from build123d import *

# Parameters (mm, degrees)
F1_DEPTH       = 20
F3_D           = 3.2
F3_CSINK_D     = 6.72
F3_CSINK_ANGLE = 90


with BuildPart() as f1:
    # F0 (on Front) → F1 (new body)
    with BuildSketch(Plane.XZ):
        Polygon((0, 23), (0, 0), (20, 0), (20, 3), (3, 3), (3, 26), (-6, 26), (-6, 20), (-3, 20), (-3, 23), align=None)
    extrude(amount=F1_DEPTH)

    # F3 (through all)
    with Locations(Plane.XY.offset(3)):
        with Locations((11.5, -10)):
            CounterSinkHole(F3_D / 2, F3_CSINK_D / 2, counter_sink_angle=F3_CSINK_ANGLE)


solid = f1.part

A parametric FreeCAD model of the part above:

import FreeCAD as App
import Part
import Sketcher

V = App.Vector
Q = App.Units.Quantity


def add_polygon(sketch, points):
    """Adds a closed chain of lines whose ends are joined by coincident constraints."""
    first, n = sketch.GeometryCount, len(points)
    for a, b in zip(points, points[1:] + points[:1]):
        sketch.addGeometry(Part.LineSegment(App.Vector(*a, 0), App.Vector(*b, 0)), False)
    for i in range(n):
        sketch.addConstraint(Sketcher.Constraint("Coincident", first + i, 2, first + (i + 1) % n, 1))

doc = App.newDocument("Part")
body = doc.addObject("PartDesign::Body", "Body")

sketch1 = body.newObject("Sketcher::SketchObject", "Sketch")
sketch1.AttachmentSupport = (doc.getObject("XZ_Plane"), [""])
sketch1.MapMode = "FlatFace"
add_polygon(sketch1, [(0, 23), (0, 0), (20, 0), (20, 3), (3, 3), (3, 26), (-6, 26), (-6, 20), (-3, 20), (-3, 23)])
sketch1.addConstraint(Sketcher.Constraint("Vertical", 0))
sketch1.addConstraint(Sketcher.Constraint("Horizontal", 1))
sketch1.addConstraint(Sketcher.Constraint("Vertical", 2))
sketch1.addConstraint(Sketcher.Constraint("Horizontal", 3))
sketch1.addConstraint(Sketcher.Constraint("Vertical", 4))
sketch1.addConstraint(Sketcher.Constraint("Horizontal", 5))
sketch1.addConstraint(Sketcher.Constraint("Vertical", 6))
sketch1.addConstraint(Sketcher.Constraint("Horizontal", 7))
sketch1.addConstraint(Sketcher.Constraint("Vertical", 8))
sketch1.addConstraint(Sketcher.Constraint("Horizontal", 9))
sketch1.addConstraint(Sketcher.Constraint("Coincident", 0, 2, -1, 1))
sketch1.addConstraint(Sketcher.Constraint("Equal", 7, 9))
sketch1.addConstraint(Sketcher.Constraint("Equal", 9, 2))
sketch1.addConstraint(Sketcher.Constraint("Equal", 0, 4))
sketch1.addConstraint(Sketcher.Constraint("Equal", 2, 8))
sketch1.addConstraint(Sketcher.Constraint("DistanceX", 1, 1, 1, 2, Q("20 mm")))
sketch1.addConstraint(Sketcher.Constraint("DistanceX", 3, 2, 3, 1, Q("17 mm")))
sketch1.addConstraint(Sketcher.Constraint("DistanceX", 5, 2, 5, 1, Q("9 mm")))
sketch1.addConstraint(Sketcher.Constraint("DistanceY", 0, 2, 0, 1, Q("23 mm")))
pad1 = body.newObject("PartDesign::Pad", "Pad")
pad1.Profile = sketch1
pad1.Length = 20

sketch2 = body.newObject("Sketcher::SketchObject", "Sketch001")
sketch2.AttachmentSupport = (doc.getObject("XY_Plane"), [""])
sketch2.MapMode = "FlatFace"
sketch2.AttachmentOffset = App.Placement(V(0, 0, 3), App.Rotation())
sketch2.addGeometry(Part.Circle(V(11.5, -10, 0), V(0, 0, 1), 1.6), False)
sketch2.addConstraint(Sketcher.Constraint("Diameter", 0, Q("3.2 mm")))
sketch2.addConstraint(Sketcher.Constraint("DistanceY", 0, 3, -1, 1, Q("10 mm")))
sketch2.addConstraint(Sketcher.Constraint("DistanceX", -1, 1, 0, 3, Q("11.5 mm")))
doc.recompute()
hole = body.newObject("PartDesign::Hole", "Hole")
hole.Profile = sketch2
hole.ThreadType = "None"
hole.Diameter = 3.2
hole.DepthType = "ThroughAll"
hole.HoleCutType = "Countersink"
hole.HoleCutDiameter = 6.72
hole.HoleCutCountersinkAngle = 90

doc.recompute()
